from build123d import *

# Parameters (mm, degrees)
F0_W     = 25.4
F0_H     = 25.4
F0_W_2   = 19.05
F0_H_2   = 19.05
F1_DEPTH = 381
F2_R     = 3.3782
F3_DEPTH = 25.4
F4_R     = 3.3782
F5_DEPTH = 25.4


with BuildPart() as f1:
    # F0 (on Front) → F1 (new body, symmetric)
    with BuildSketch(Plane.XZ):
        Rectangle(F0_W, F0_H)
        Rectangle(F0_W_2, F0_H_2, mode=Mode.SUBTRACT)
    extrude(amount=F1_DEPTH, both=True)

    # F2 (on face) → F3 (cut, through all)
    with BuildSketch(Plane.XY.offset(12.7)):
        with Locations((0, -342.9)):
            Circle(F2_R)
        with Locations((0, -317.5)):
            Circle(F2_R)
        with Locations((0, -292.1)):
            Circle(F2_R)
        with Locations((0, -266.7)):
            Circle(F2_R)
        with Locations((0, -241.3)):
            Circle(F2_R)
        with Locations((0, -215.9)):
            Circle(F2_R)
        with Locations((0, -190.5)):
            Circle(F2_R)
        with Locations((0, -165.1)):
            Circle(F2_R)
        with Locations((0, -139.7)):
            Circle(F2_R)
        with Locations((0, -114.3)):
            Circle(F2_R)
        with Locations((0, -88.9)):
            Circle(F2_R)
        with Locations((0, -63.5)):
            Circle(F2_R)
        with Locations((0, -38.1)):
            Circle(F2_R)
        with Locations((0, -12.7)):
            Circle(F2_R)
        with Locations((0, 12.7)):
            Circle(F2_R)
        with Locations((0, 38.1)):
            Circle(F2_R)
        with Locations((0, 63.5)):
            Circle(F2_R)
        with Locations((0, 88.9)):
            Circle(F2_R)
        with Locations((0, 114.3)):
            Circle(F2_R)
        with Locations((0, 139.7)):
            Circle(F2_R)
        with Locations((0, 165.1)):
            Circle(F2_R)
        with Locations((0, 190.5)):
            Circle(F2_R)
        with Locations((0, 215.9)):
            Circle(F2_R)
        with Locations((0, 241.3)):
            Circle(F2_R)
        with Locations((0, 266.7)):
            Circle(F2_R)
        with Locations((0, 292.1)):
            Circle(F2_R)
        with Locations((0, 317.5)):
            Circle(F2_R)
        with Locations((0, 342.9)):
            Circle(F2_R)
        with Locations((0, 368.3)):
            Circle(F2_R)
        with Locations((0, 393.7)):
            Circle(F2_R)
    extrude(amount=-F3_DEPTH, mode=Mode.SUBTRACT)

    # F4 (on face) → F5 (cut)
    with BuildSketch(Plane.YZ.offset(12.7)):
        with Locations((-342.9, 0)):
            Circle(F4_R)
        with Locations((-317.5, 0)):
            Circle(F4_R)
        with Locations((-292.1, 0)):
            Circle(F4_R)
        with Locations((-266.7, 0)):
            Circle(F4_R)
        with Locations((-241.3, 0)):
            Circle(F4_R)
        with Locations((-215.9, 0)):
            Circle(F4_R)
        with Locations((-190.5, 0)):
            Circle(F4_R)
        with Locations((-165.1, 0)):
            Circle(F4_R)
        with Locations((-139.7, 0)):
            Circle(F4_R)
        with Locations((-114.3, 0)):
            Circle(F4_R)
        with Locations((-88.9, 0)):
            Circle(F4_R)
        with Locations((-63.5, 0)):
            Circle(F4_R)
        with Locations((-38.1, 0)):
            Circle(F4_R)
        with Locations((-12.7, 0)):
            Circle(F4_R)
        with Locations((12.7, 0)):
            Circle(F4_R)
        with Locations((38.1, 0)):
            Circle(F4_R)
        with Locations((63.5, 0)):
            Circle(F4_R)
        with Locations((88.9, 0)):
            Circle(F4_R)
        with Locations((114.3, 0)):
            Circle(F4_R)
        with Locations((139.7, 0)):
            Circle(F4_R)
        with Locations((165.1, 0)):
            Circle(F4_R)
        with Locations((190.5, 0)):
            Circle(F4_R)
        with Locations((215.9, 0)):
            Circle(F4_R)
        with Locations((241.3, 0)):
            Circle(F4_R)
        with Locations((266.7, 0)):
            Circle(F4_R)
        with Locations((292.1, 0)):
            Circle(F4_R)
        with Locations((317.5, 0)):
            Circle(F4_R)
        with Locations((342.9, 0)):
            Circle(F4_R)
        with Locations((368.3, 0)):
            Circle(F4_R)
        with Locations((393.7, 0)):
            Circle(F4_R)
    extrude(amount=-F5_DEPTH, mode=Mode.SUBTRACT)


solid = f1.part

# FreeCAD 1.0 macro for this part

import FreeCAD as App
import Part
import Sketcher
from FreeCAD import Vector
Q = App.Units.Quantity


def add_polygon(sketch, points):
    """Adds a closed chain of lines whose ends are joined by coincident constraints."""
    first, n = sketch.GeometryCount, len(points)
    for a, b in zip(points, points[1:] + points[:1]):
        sketch.addGeometry(Part.LineSegment(App.Vector(*a, 0), App.Vector(*b, 0)), False)
    for i in range(n):
        sketch.addConstraint(Sketcher.Constraint("Coincident", first + i, 2, first + (i + 1) % n, 1))

doc = App.newDocument("Part")
params = doc.addObject("Spreadsheet::Sheet", "Params")
for row, (alias, value) in enumerate([
    ("sketch1_width", "1 in"),
    ("sketch1_width2", "0.75 in"),
    ("pad1_length", "30 in"),
    ("sketch2_diameter", "0.266 in"),
    ("sketch3_diameter", "0.266 in"),
    ("pocket2_length", "1 in"),
], start=1):
    params.set(f"A{row}", alias)
    params.set(f"B{row}", "=" + value)
    params.setAlias(f"B{row}", alias)

body = doc.addObject("PartDesign::Body", "Body")

# Sketch on XZ plane
sketch1 = doc.addObject("Sketcher::SketchObject", "Sketch")
body.addObject(sketch1)
sketch1.AttachmentSupport = (doc.XZ_Plane, [""])
sketch1.MapMode = "FlatFace"
add_polygon(sketch1, [(-13, 13), (-13, -13), (13, -13), (13, 13)])  # lines 0-3
add_polygon(sketch1, [(10, -10), (-10, -10), (-10, 10), (10, 10)])  # lines 4-7
sketch1.addConstraint([
    Sketcher.Constraint("Vertical", 0),
    Sketcher.Constraint("Horizontal", 1),
    Sketcher.Constraint("Vertical", 2),
    Sketcher.Constraint("Horizontal", 3),
    Sketcher.Constraint("Horizontal", 4),
    Sketcher.Constraint("Vertical", 5),
    Sketcher.Constraint("Horizontal", 6),
    Sketcher.Constraint("Vertical", 7),
    Sketcher.Constraint("Symmetric", 0, 2, 2, 2, -1, 1),
    Sketcher.Constraint("Symmetric", 4, 2, 6, 2, -1, 1),
    Sketcher.Constraint("Equal", 3, 0),
    Sketcher.Constraint("Equal", 6, 5),
    Sketcher.Constraint("DistanceX", 1, 1, 1, 2, Q("1 in")),
    Sketcher.Constraint("DistanceX", 4, 2, 4, 1, Q("0.75 in")),
])
sketch1.setExpression("Constraints[20]", "Params.sketch1_width")
sketch1.setExpression("Constraints[21]", "Params.sketch1_width2")
pad1 = doc.addObject("PartDesign::Pad", "Pad")
body.addObject(pad1)
pad1.Profile = sketch1
pad1.setExpression("Length", "Params.pad1_length")
pad1.Midplane = True

# Sketch on XY plane
sketch2 = doc.addObject("Sketcher::SketchObject", "Sketch001")
body.addObject(sketch2)
sketch2.AttachmentSupport = (doc.XY_Plane, [""])
sketch2.MapMode = "FlatFace"
sketch2.AttachmentOffset = App.Placement(Vector(0, 0, 0.5 * 25.4), App.Rotation())
sketch2.addGeometry([
    Part.Circle(Vector(0, -342.9, 0), Vector(0, 0, 1), 3.4),  # 0
    Part.Circle(Vector(0, -317.5, 0), Vector(0, 0, 1), 3.4),  # 1
    Part.Circle(Vector(0, -292.1, 0), Vector(0, 0, 1), 3.4),  # 2
    Part.Circle(Vector(0, -266.7, 0), Vector(0, 0, 1), 3.4),  # 3
    Part.Circle(Vector(0, -241.3, 0), Vector(0, 0, 1), 3.4),  # 4
    Part.Circle(Vector(0, -215.9, 0), Vector(0, 0, 1), 3.4),  # 5
    Part.Circle(Vector(0, -190.5, 0), Vector(0, 0, 1), 3.4),  # 6
    Part.Circle(Vector(0, -165.1, 0), Vector(0, 0, 1), 3.4),  # 7
    Part.Circle(Vector(0, -139.7, 0), Vector(0, 0, 1), 3.4),  # 8
    Part.Circle(Vector(0, -114.3, 0), Vector(0, 0, 1), 3.4),  # 9
    Part.Circle(Vector(0, -88.9, 0), Vector(0, 0, 1), 3.4),  # 10
    Part.Circle(Vector(0, -63.5, 0), Vector(0, 0, 1), 3.4),  # 11
    Part.Circle(Vector(0, -38.1, 0), Vector(0, 0, 1), 3.4),  # 12
    Part.Circle(Vector(0, -12.7, 0), Vector(0, 0, 1), 3.4),  # 13
    Part.Circle(Vector(0, 12.7, 0), Vector(0, 0, 1), 3.4),  # 14
    Part.Circle(Vector(0, 38.1, 0), Vector(0, 0, 1), 3.4),  # 15
    Part.Circle(Vector(0, 63.5, 0), Vector(0, 0, 1), 3.4),  # 16
    Part.Circle(Vector(0, 88.9, 0), Vector(0, 0, 1), 3.4),  # 17
    Part.Circle(Vector(0, 114.3, 0), Vector(0, 0, 1), 3.4),  # 18
    Part.Circle(Vector(0, 139.7, 0), Vector(0, 0, 1), 3.4),  # 19
    Part.Circle(Vector(0, 165.1, 0), Vector(0, 0, 1), 3.4),  # 20
    Part.Circle(Vector(0, 190.5, 0), Vector(0, 0, 1), 3.4),  # 21
    Part.Circle(Vector(0, 215.9, 0), Vector(0, 0, 1), 3.4),  # 22
    Part.Circle(Vector(0, 241.3, 0), Vector(0, 0, 1), 3.4),  # 23
    Part.Circle(Vector(0, 266.7, 0), Vector(0, 0, 1), 3.4),  # 24
    Part.Circle(Vector(0, 292.1, 0), Vector(0, 0, 1), 3.4),  # 25
    Part.Circle(Vector(0, 317.5, 0), Vector(0, 0, 1), 3.4),  # 26
    Part.Circle(Vector(0, 342.9, 0), Vector(0, 0, 1), 3.4),  # 27
    Part.Circle(Vector(0, 368.3, 0), Vector(0, 0, 1), 3.4),  # 28
    Part.Circle(Vector(0, 393.7, 0), Vector(0, 0, 1), 3.4),  # 29
], False)
sketch2.addConstraint([
    Sketcher.Constraint("Equal", 0, 1),
    Sketcher.Constraint("Equal", 1, 2),
    Sketcher.Constraint("Equal", 2, 3),
    Sketcher.Constraint("Equal", 3, 4),
    Sketcher.Constraint("Equal", 4, 5),
    Sketcher.Constraint("Equal", 5, 6),
    Sketcher.Constraint("Equal", 6, 7),
    Sketcher.Constraint("Equal", 7, 8),
    Sketcher.Constraint("Equal", 8, 9),
    Sketcher.Constraint("Equal", 9, 10),
    Sketcher.Constraint("Equal", 10, 11),
    Sketcher.Constraint("Equal", 11, 12),
    Sketcher.Constraint("Equal", 12, 13),
    Sketcher.Constraint("Equal", 13, 14),
    Sketcher.Constraint("Equal", 14, 15),
    Sketcher.Constraint("Equal", 15, 16),
    Sketcher.Constraint("Equal", 16, 17),
    Sketcher.Constraint("Equal", 17, 18),
    Sketcher.Constraint("Equal", 18, 19),
    Sketcher.Constraint("Equal", 19, 20),
    Sketcher.Constraint("Equal", 20, 21),
    Sketcher.Constraint("Equal", 21, 22),
    Sketcher.Constraint("Equal", 22, 23),
    Sketcher.Constraint("Equal", 23, 24),
    Sketcher.Constraint("Equal", 24, 25),
    Sketcher.Constraint("Equal", 25, 26),
    Sketcher.Constraint("Equal", 26, 27),
    Sketcher.Constraint("Equal", 27, 28),
    Sketcher.Constraint("Equal", 28, 29),
    Sketcher.Constraint("Symmetric", 13, 3, 14, 3, -1, 1),
    Sketcher.Constraint("Symmetric", 12, 3, 15, 3, -1, 1),
    Sketcher.Constraint("Symmetric", 11, 3, 16, 3, -1, 1),
    Sketcher.Constraint("Symmetric", 10, 3, 17, 3, -1, 1),
    Sketcher.Constraint("Symmetric", 9, 3, 18, 3, -1, 1),
    Sketcher.Constraint("Symmetric", 8, 3, 19, 3, -1, 1),
    Sketcher.Constraint("Symmetric", 7, 3, 20, 3, -1, 1),
    Sketcher.Constraint("Symmetric", 6, 3, 21, 3, -1, 1),
    Sketcher.Constraint("Symmetric", 5, 3, 22, 3, -1, 1),
    Sketcher.Constraint("Symmetric", 4, 3, 23, 3, -1, 1),
    Sketcher.Constraint("Symmetric", 3, 3, 24, 3, -1, 1),
    Sketcher.Constraint("Symmetric", 2, 3, 25, 3, -1, 1),
    Sketcher.Constraint("Symmetric", 1, 3, 26, 3, -1, 1),
    Sketcher.Constraint("Symmetric", 0, 3, 27, 3, -1, 1),
    Sketcher.Constraint("PointOnObject", 0, 3, -2),
    Sketcher.Constraint("PointOnObject", 1, 3, -2),
    Sketcher.Constraint("PointOnObject", 2, 3, -2),
    Sketcher.Constraint("PointOnObject", 3, 3, -2),
    Sketcher.Constraint("PointOnObject", 4, 3, -2),
    Sketcher.Constraint("PointOnObject", 5, 3, -2),
    Sketcher.Constraint("PointOnObject", 6, 3, -2),
    Sketcher.Constraint("PointOnObject", 7, 3, -2),
    Sketcher.Constraint("PointOnObject", 8, 3, -2),
    Sketcher.Constraint("PointOnObject", 9, 3, -2),
    Sketcher.Constraint("PointOnObject", 10, 3, -2),
    Sketcher.Constraint("PointOnObject", 11, 3, -2),
    Sketcher.Constraint("PointOnObject", 12, 3, -2),
    Sketcher.Constraint("PointOnObject", 13, 3, -2),
    Sketcher.Constraint("PointOnObject", 28, 3, -2),
    Sketcher.Constraint("PointOnObject", 29, 3, -2),
    Sketcher.Constraint("Diameter", 0, Q("0.266 in")),
    Sketcher.Constraint("DistanceY", 0, 3, 1, 3, Q("1 in")),
    Sketcher.Constraint("DistanceY", 1, 3, 2, 3, Q("1 in")),
    Sketcher.Constraint("DistanceY", 2, 3, 3, 3, Q("1 in")),
    Sketcher.Constraint("DistanceY", 3, 3, 4, 3, Q("1 in")),
    Sketcher.Constraint("DistanceY", 4, 3, 5, 3, Q("1 in")),
    Sketcher.Constraint("DistanceY", 5, 3, 6, 3, Q("1 in")),
    Sketcher.Constraint("DistanceY", 6, 3, 7, 3, Q("1 in")),
    Sketcher.Constraint("DistanceY", 7, 3, 8, 3, Q("1 in")),
    Sketcher.Constraint("DistanceY", 8, 3, 9, 3, Q("1 in")),
    Sketcher.Constraint("DistanceY", 9, 3, 10, 3, Q("1 in")),
    Sketcher.Constraint("DistanceY", 10, 3, 11, 3, Q("1 in")),
    Sketcher.Constraint("DistanceY", 11, 3, 12, 3, Q("1 in")),
    Sketcher.Constraint("DistanceY", 12, 3, 13, 3, Q("1 in")),
    Sketcher.Constraint("DistanceY", 13, 3, 14, 3, Q("1 in")),
    Sketcher.Constraint("DistanceY", 27, 3, 28, 3, Q("1 in")),
    Sketcher.Constraint("DistanceY", 28, 3, 29, 3, Q("1 in")),
])
sketch2.setExpression("Constraints[59]", "Params.sketch2_diameter")
pocket1 = doc.addObject("PartDesign::Pocket", "Pocket")
body.addObject(pocket1)
pocket1.Profile = sketch2
pocket1.Type = "ThroughAll"

# Sketch on YZ plane
sketch3 = doc.addObject("Sketcher::SketchObject", "Sketch002")
body.addObject(sketch3)
sketch3.AttachmentSupport = (doc.YZ_Plane, [""])
sketch3.MapMode = "FlatFace"
sketch3.AttachmentOffset = App.Placement(Vector(0, 0, 0.5 * 25.4), App.Rotation())
sketch3.addGeometry([
    Part.Circle(Vector(-342.9, 0, 0), Vector(0, 0, 1), 3.4),  # 0
    Part.Circle(Vector(-317.5, 0, 0), Vector(0, 0, 1), 3.4),  # 1
    Part.Circle(Vector(-292.1, 0, 0), Vector(0, 0, 1), 3.4),  # 2
    Part.Circle(Vector(-266.7, 0, 0), Vector(0, 0, 1), 3.4),  # 3
    Part.Circle(Vector(-241.3, 0, 0), Vector(0, 0, 1), 3.4),  # 4
    Part.Circle(Vector(-215.9, 0, 0), Vector(0, 0, 1), 3.4),  # 5
    Part.Circle(Vector(-190.5, 0, 0), Vector(0, 0, 1), 3.4),  # 6
    Part.Circle(Vector(-165.1, 0, 0), Vector(0, 0, 1), 3.4),  # 7
    Part.Circle(Vector(-139.7, 0, 0), Vector(0, 0, 1), 3.4),  # 8
    Part.Circle(Vector(-114.3, 0, 0), Vector(0, 0, 1), 3.4),  # 9
    Part.Circle(Vector(-88.9, 0, 0), Vector(0, 0, 1), 3.4),  # 10
    Part.Circle(Vector(-63.5, 0, 0), Vector(0, 0, 1), 3.4),  # 11
    Part.Circle(Vector(-38.1, 0, 0), Vector(0, 0, 1), 3.4),  # 12
    Part.Circle(Vector(-12.7, 0, 0), Vector(0, 0, 1), 3.4),  # 13
    Part.Circle(Vector(12.7, 0, 0), Vector(0, 0, 1), 3.4),  # 14
    Part.Circle(Vector(38.1, 0, 0), Vector(0, 0, 1), 3.4),  # 15
    Part.Circle(Vector(63.5, 0, 0), Vector(0, 0, 1), 3.4),  # 16
    Part.Circle(Vector(88.9, 0, 0), Vector(0, 0, 1), 3.4),  # 17
    Part.Circle(Vector(114.3, 0, 0), Vector(0, 0, 1), 3.4),  # 18
    Part.Circle(Vector(139.7, 0, 0), Vector(0, 0, 1), 3.4),  # 19
    Part.Circle(Vector(165.1, 0, 0), Vector(0, 0, 1), 3.4),  # 20
    Part.Circle(Vector(190.5, 0, 0), Vector(0, 0, 1), 3.4),  # 21
    Part.Circle(Vector(215.9, 0, 0), Vector(0, 0, 1), 3.4),  # 22
    Part.Circle(Vector(241.3, 0, 0), Vector(0, 0, 1), 3.4),  # 23
    Part.Circle(Vector(266.7, 0, 0), Vector(0, 0, 1), 3.4),  # 24
    Part.Circle(Vector(292.1, 0, 0), Vector(0, 0, 1), 3.4),  # 25
    Part.Circle(Vector(317.5, 0, 0), Vector(0, 0, 1), 3.4),  # 26
    Part.Circle(Vector(342.9, 0, 0), Vector(0, 0, 1), 3.4),  # 27
    Part.Circle(Vector(368.3, 0, 0), Vector(0, 0, 1), 3.4),  # 28
    Part.Circle(Vector(393.7, 0, 0), Vector(0, 0, 1), 3.4),  # 29
], False)
sketch3.addConstraint([
    Sketcher.Constraint("Equal", 0, 1),
    Sketcher.Constraint("Equal", 1, 2),
    Sketcher.Constraint("Equal", 2, 3),
    Sketcher.Constraint("Equal", 3, 4),
    Sketcher.Constraint("Equal", 4, 5),
    Sketcher.Constraint("Equal", 5, 6),
    Sketcher.Constraint("Equal", 6, 7),
    Sketcher.Constraint("Equal", 7, 8),
    Sketcher.Constraint("Equal", 8, 9),
    Sketcher.Constraint("Equal", 9, 10),
    Sketcher.Constraint("Equal", 10, 11),
    Sketcher.Constraint("Equal", 11, 12),
    Sketcher.Constraint("Equal", 12, 13),
    Sketcher.Constraint("Equal", 13, 14),
    Sketcher.Constraint("Equal", 14, 15),
    Sketcher.Constraint("Equal", 15, 16),
    Sketcher.Constraint("Equal", 16, 17),
    Sketcher.Constraint("Equal", 17, 18),
    Sketcher.Constraint("Equal", 18, 19),
    Sketcher.Constraint("Equal", 19, 20),
    Sketcher.Constraint("Equal", 20, 21),
    Sketcher.Constraint("Equal", 21, 22),
    Sketcher.Constraint("Equal", 22, 23),
    Sketcher.Constraint("Equal", 23, 24),
    Sketcher.Constraint("Equal", 24, 25),
    Sketcher.Constraint("Equal", 25, 26),
    Sketcher.Constraint("Equal", 26, 27),
    Sketcher.Constraint("Equal", 27, 28),
    Sketcher.Constraint("Equal", 28, 29),
    Sketcher.Constraint("Symmetric", 13, 3, 14, 3, -1, 1),
    Sketcher.Constraint("Symmetric", 12, 3, 15, 3, -1, 1),
    Sketcher.Constraint("Symmetric", 11, 3, 16, 3, -1, 1),
    Sketcher.Constraint("Symmetric", 10, 3, 17, 3, -1, 1),
    Sketcher.Constraint("Symmetric", 9, 3, 18, 3, -1, 1),
    Sketcher.Constraint("Symmetric", 8, 3, 19, 3, -1, 1),
    Sketcher.Constraint("Symmetric", 7, 3, 20, 3, -1, 1),
    Sketcher.Constraint("Symmetric", 6, 3, 21, 3, -1, 1),
    Sketcher.Constraint("Symmetric", 5, 3, 22, 3, -1, 1),
    Sketcher.Constraint("Symmetric", 4, 3, 23, 3, -1, 1),
    Sketcher.Constraint("Symmetric", 3, 3, 24, 3, -1, 1),
    Sketcher.Constraint("Symmetric", 2, 3, 25, 3, -1, 1),
    Sketcher.Constraint("Symmetric", 1, 3, 26, 3, -1, 1),
    Sketcher.Constraint("Symmetric", 0, 3, 27, 3, -1, 1),
    Sketcher.Constraint("PointOnObject", 0, 3, -1),
    Sketcher.Constraint("PointOnObject", 1, 3, -1),
    Sketcher.Constraint("PointOnObject", 2, 3, -1),
    Sketcher.Constraint("PointOnObject", 3, 3, -1),
    Sketcher.Constraint("PointOnObject", 4, 3, -1),
    Sketcher.Constraint("PointOnObject", 5, 3, -1),
    Sketcher.Constraint("PointOnObject", 6, 3, -1),
    Sketcher.Constraint("PointOnObject", 7, 3, -1),
    Sketcher.Constraint("PointOnObject", 8, 3, -1),
    Sketcher.Constraint("PointOnObject", 9, 3, -1),
    Sketcher.Constraint("PointOnObject", 10, 3, -1),
    Sketcher.Constraint("PointOnObject", 11, 3, -1),
    Sketcher.Constraint("PointOnObject", 12, 3, -1),
    Sketcher.Constraint("PointOnObject", 13, 3, -1),
    Sketcher.Constraint("PointOnObject", 28, 3, -1),
    Sketcher.Constraint("PointOnObject", 29, 3, -1),
    Sketcher.Constraint("Diameter", 0, Q("0.266 in")),
    Sketcher.Constraint("DistanceX", 0, 3, 1, 3, Q("1 in")),
    Sketcher.Constraint("DistanceX", 1, 3, 2, 3, Q("1 in")),
    Sketcher.Constraint("DistanceX", 2, 3, 3, 3, Q("1 in")),
    Sketcher.Constraint("DistanceX", 3, 3, 4, 3, Q("1 in")),
    Sketcher.Constraint("DistanceX", 4, 3, 5, 3, Q("1 in")),
    Sketcher.Constraint("DistanceX", 5, 3, 6, 3, Q("1 in")),
    Sketcher.Constraint("DistanceX", 6, 3, 7, 3, Q("1 in")),
    Sketcher.Constraint("DistanceX", 7, 3, 8, 3, Q("1 in")),
    Sketcher.Constraint("DistanceX", 8, 3, 9, 3, Q("1 in")),
    Sketcher.Constraint("DistanceX", 9, 3, 10, 3, Q("1 in")),
    Sketcher.Constraint("DistanceX", 10, 3, 11, 3, Q("1 in")),
    Sketcher.Constraint("DistanceX", 11, 3, 12, 3, Q("1 in")),
    Sketcher.Constraint("DistanceX", 12, 3, 13, 3, Q("1 in")),
    Sketcher.Constraint("DistanceX", 13, 3, 14, 3, Q("1 in")),
    Sketcher.Constraint("DistanceX", 27, 3, 28, 3, Q("1 in")),
    Sketcher.Constraint("DistanceX", 28, 3, 29, 3, Q("1 in")),
])
sketch3.setExpression("Constraints[59]", "Params.sketch3_diameter")
pocket2 = doc.addObject("PartDesign::Pocket", "Pocket001")
body.addObject(pocket2)
pocket2.Profile = sketch3
pocket2.setExpression("Length", "Params.pocket2_length")

doc.recompute()
